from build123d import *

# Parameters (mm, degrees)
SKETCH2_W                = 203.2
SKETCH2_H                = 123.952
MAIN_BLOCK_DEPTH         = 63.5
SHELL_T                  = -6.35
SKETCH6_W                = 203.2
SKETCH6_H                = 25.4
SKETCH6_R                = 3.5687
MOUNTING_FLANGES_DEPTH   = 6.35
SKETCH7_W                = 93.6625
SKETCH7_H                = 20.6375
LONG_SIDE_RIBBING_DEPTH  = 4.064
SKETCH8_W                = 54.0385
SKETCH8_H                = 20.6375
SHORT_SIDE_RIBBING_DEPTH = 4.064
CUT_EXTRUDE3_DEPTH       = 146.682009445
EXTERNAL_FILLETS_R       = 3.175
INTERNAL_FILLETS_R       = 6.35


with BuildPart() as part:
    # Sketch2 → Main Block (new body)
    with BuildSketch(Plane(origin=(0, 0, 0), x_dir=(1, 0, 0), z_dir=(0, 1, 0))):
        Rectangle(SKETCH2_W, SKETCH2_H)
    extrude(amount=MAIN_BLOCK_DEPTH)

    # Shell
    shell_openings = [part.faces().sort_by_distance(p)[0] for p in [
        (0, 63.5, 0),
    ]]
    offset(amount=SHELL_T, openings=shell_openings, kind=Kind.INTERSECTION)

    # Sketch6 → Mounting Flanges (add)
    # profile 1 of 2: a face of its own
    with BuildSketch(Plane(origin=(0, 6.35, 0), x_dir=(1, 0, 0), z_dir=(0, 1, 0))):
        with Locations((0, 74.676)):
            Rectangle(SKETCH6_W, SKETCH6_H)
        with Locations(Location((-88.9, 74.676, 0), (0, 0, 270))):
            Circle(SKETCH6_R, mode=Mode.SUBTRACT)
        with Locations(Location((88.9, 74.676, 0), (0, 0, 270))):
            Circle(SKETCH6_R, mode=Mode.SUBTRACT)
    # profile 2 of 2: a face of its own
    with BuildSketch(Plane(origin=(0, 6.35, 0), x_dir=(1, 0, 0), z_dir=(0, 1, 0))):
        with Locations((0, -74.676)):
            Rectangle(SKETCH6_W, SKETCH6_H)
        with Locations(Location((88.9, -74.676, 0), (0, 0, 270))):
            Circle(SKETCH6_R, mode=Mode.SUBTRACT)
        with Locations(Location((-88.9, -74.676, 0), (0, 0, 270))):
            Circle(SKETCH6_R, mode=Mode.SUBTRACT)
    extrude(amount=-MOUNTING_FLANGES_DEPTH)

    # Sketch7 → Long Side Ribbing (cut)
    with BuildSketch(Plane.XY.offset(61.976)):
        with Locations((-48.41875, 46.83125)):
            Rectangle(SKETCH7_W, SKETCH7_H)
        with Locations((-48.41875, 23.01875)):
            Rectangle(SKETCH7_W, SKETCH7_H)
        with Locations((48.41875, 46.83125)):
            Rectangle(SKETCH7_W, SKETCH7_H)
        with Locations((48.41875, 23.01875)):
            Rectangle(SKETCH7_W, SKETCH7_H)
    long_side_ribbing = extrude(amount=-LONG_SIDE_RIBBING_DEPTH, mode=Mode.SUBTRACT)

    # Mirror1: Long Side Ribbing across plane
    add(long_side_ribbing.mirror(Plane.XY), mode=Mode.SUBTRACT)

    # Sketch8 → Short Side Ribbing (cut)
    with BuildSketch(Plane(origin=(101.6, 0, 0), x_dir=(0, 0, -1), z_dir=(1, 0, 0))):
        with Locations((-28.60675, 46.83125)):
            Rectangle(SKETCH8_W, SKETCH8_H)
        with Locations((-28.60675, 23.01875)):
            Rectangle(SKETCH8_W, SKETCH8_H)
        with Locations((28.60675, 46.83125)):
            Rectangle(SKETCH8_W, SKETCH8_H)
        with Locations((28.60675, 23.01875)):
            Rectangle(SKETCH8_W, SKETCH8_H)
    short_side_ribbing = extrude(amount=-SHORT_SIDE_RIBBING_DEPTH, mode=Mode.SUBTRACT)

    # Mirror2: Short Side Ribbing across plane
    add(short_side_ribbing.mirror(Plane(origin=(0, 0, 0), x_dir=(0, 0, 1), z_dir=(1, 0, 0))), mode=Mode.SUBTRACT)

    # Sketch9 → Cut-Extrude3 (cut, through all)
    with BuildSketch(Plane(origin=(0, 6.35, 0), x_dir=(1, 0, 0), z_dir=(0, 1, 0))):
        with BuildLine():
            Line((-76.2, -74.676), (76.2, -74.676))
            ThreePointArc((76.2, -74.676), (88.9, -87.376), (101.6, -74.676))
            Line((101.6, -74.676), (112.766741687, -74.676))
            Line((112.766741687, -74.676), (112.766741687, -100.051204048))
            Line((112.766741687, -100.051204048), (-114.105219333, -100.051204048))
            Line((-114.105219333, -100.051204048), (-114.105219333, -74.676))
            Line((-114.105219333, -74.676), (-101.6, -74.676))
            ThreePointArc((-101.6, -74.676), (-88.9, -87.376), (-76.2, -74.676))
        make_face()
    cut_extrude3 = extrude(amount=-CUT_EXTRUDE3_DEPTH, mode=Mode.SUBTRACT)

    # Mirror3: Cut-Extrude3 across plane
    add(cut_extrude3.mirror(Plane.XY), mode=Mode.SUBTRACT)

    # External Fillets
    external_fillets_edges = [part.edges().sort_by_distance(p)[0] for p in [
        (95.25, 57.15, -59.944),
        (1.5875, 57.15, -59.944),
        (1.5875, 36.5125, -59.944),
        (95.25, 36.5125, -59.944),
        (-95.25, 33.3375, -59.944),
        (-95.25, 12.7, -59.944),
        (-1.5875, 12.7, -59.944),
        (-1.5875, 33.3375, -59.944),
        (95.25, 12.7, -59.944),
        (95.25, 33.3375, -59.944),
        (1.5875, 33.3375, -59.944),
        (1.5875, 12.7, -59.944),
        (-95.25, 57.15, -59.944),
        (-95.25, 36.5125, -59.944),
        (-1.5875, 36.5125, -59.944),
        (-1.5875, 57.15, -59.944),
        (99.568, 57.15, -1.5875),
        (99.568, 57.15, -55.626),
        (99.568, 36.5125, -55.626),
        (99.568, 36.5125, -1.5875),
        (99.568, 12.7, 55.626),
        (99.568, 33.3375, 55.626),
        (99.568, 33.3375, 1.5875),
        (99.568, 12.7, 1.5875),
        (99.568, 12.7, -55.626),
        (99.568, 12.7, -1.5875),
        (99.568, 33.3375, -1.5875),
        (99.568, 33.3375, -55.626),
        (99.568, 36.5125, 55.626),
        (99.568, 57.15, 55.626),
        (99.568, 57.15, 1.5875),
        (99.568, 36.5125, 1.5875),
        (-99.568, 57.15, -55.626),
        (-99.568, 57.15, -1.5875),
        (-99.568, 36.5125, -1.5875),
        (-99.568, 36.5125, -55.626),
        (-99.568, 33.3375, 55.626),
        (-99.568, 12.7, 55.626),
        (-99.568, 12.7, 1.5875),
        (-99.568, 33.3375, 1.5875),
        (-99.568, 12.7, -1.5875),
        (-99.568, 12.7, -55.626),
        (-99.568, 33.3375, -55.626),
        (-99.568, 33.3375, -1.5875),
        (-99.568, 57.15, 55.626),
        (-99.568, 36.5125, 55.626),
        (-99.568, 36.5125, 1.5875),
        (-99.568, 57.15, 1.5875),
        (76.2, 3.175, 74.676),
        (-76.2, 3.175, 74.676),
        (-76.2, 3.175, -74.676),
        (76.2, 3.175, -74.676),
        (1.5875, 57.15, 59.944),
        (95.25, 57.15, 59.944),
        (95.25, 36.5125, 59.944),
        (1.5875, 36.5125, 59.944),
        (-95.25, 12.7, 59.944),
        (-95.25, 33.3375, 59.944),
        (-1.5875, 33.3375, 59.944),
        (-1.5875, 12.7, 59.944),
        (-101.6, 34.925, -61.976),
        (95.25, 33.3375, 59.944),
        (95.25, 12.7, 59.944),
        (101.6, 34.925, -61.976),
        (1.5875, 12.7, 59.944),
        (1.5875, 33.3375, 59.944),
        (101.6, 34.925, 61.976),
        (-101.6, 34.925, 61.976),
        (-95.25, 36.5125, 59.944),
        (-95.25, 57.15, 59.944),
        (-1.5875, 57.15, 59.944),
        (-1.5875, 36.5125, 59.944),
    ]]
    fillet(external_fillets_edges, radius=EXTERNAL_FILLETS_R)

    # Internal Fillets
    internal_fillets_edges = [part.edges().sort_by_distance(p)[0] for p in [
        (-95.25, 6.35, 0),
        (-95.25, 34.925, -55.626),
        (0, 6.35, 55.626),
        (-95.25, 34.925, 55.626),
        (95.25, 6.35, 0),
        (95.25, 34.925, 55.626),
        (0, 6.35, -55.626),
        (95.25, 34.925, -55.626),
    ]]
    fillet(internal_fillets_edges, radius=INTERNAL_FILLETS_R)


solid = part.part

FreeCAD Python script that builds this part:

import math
import FreeCAD as App
import Part
import Sketcher

V = App.Vector
Q = App.Units.Quantity


def edges_at(feature, points):
    """Names of the edges that pass closest to the given points."""
    edges = feature.Shape.Edges
    near = lambda p: min(range(len(edges)), key=lambda i: edges[i].distToShape(Part.Vertex(*p))[0])
    return sorted({f"Edge{near(p) + 1}" for p in points})


def faces_at(feature, points):
    """Names of the faces that lie closest to the given points."""
    faces = feature.Shape.Faces
    near = lambda p: min(range(len(faces)), key=lambda i: faces[i].distToShape(Part.Vertex(*p))[0])
    return sorted({f"Face{near(p) + 1}" for p in points})

doc = App.newDocument("Part")
body = doc.addObject("PartDesign::Body", "Body")

# Sketch on XZ plane
sketch1 = body.newObject("Sketcher::SketchObject", "Sketch")
sketch1.AttachmentSupport = (doc.getObject("XZ_Plane"), [""])
sketch1.MapMode = "FlatFace"
sketch1.addGeometry([
    Part.LineSegment(V(-102, -62, 0), V(-102, 62, 0)),
    Part.LineSegment(V(-102, 62, 0), V(102, 62, 0)),
    Part.LineSegment(V(102, 62, 0), V(102, -62, 0)),
    Part.LineSegment(V(102, -62, 0), V(-102, -62, 0)),
], False)
sketch1.addConstraint([
    Sketcher.Constraint("Coincident", 0, 2, 1, 1),
    Sketcher.Constraint("Coincident", 1, 2, 2, 1),
    Sketcher.Constraint("Coincident", 2, 2, 3, 1),
    Sketcher.Constraint("Coincident", 3, 2, 0, 1),
    Sketcher.Constraint("Vertical", 0),
    Sketcher.Constraint("Horizontal", 1),
    Sketcher.Constraint("Vertical", 2),
    Sketcher.Constraint("Horizontal", 3),
    Sketcher.Constraint("Symmetric", 0, 2, 2, 2, -1, 1),
    Sketcher.Constraint("DistanceX", 1, 1, 1, 2, Q("8 in")),
    Sketcher.Constraint("DistanceY", 0, 1, 0, 2, Q("4.88 in")),
])
pad1 = body.newObject("PartDesign::Pad", "Pad")
pad1.Profile = sketch1
pad1.Length = Q("2.5 in")
pad1.Reversed = True
doc.recompute()

thickness = body.newObject("PartDesign::Thickness", "Thickness")
thickness.Base = (pad1, faces_at(pad1, [(0, 63.5, 0)]))
thickness.Value = Q("0.25 in")
thickness.Reversed = True
thickness.Join = "Intersection"

# Sketch on XZ plane
sketch2 = body.newObject("Sketcher::SketchObject", "Sketch001")
sketch2.AttachmentSupport = (doc.getObject("XZ_Plane"), [""])
sketch2.MapMode = "FlatFace"
sketch2.AttachmentOffset = App.Placement(V(0, 0, -0.25 * 25.4), App.Rotation())
sketch2.addGeometry([
    Part.LineSegment(V(-101.6, -87.4, 0), V(-101.6, -62, 0)),  # 0
    Part.LineSegment(V(-101.6, -62, 0), V(101.6, -62, 0)),  # 1
    Part.LineSegment(V(101.6, -62, 0), V(101.6, -87.4, 0)),  # 2
    Part.LineSegment(V(101.6, -87.4, 0), V(-101.6, -87.4, 0)),  # 3
    Part.Circle(V(-88.9, -74.7, 0), V(0, 0, 1), 3.6),  # 4
    Part.Circle(V(88.9, -74.7, 0), V(0, 0, 1), 3.6),  # 5
    Part.LineSegment(V(-101.6, 62, 0), V(-101.6, 87.4, 0)),  # 6
    Part.LineSegment(V(-101.6, 87.4, 0), V(101.6, 87.4, 0)),  # 7
    Part.LineSegment(V(101.6, 87.4, 0), V(101.6, 62, 0)),  # 8
    Part.LineSegment(V(101.6, 62, 0), V(-101.6, 62, 0)),  # 9
    Part.Circle(V(-88.9, 74.7, 0), V(0, 0, 1), 3.6),  # 10
    Part.Circle(V(88.9, 74.7, 0), V(0, 0, 1), 3.6),  # 11
], False)
sketch2.addConstraint([
    Sketcher.Constraint("Coincident", 0, 2, 1, 1),
    Sketcher.Constraint("Coincident", 1, 2, 2, 1),
    Sketcher.Constraint("Coincident", 2, 2, 3, 1),
    Sketcher.Constraint("Coincident", 3, 2, 0, 1),
    Sketcher.Constraint("Coincident", 6, 2, 7, 1),
    Sketcher.Constraint("Coincident", 7, 2, 8, 1),
    Sketcher.Constraint("Coincident", 8, 2, 9, 1),
    Sketcher.Constraint("Coincident", 9, 2, 6, 1),
    Sketcher.Constraint("Vertical", 0),
    Sketcher.Constraint("Horizontal", 1),
    Sketcher.Constraint("Vertical", 2),
    Sketcher.Constraint("Horizontal", 3),
    Sketcher.Constraint("Vertical", 6),
    Sketcher.Constraint("Horizontal", 7),
    Sketcher.Constraint("Vertical", 8),
    Sketcher.Constraint("Horizontal", 9),
    Sketcher.Constraint("Equal", 4, 5),
    Sketcher.Constraint("Equal", 5, 10),
    Sketcher.Constraint("Equal", 10, 11),
    Sketcher.Constraint("Symmetric", 5, 3, 10, 3, -1, 1),
    Sketcher.Constraint("Symmetric", 4, 3, 11, 3, -1, 1),
    Sketcher.Constraint("Symmetric", 2, 2, 6, 2, -1, 1),
    Sketcher.Constraint("Symmetric", 0, 2, 8, 2, -1, 1),
    Sketcher.Constraint("Symmetric", 4, 3, 5, 3, -2),
    Sketcher.Constraint("Vertical", 3, 2, 6, 2),
    Sketcher.Constraint("DistanceX", 1, 1, 1, 2, Q("8 in")),
    Sketcher.Constraint("DistanceY", 0, 1, 0, 2, Q("1 in")),
    Sketcher.Constraint("Diameter", 4, Q("0.281 in")),
    Sketcher.Constraint("DistanceX", 4, 3, 5, 3, Q("7 in")),
    Sketcher.Constraint("DistanceY", 4, 3, 0, 2, Q("0.5 in")),
    Sketcher.Constraint("DistanceY", 4, 3, -1, 1, Q("2.94 in")),
])
pad2 = body.newObject("PartDesign::Pad", "Pad001")
pad2.Profile = sketch2
pad2.Length = Q("0.25 in")

# Sketch on XY plane
sketch3 = body.newObject("Sketcher::SketchObject", "Sketch002")
sketch3.AttachmentSupport = (doc.getObject("XY_Plane"), [""])
sketch3.MapMode = "FlatFace"
sketch3.AttachmentOffset = App.Placement(V(0, 0, 2.44 * 25.4), App.Rotation())
sketch3.addGeometry([
    Part.LineSegment(V(-95, 57, 0), V(-95, 37, 0)),  # 0
    Part.LineSegment(V(-95, 37, 0), V(-2, 37, 0)),  # 1
    Part.LineSegment(V(-2, 37, 0), V(-2, 57, 0)),  # 2
    Part.LineSegment(V(-2, 57, 0), V(-95, 57, 0)),  # 3
    Part.LineSegment(V(-95, 33, 0), V(-95, 13, 0)),  # 4
    Part.LineSegment(V(-95, 13, 0), V(-2, 13, 0)),  # 5
    Part.LineSegment(V(-2, 13, 0), V(-2, 33, 0)),  # 6
    Part.LineSegment(V(-2, 33, 0), V(-95, 33, 0)),  # 7
    Part.LineSegment(V(2, 57, 0), V(2, 37, 0)),  # 8
    Part.LineSegment(V(2, 37, 0), V(95, 37, 0)),  # 9
    Part.LineSegment(V(95, 37, 0), V(95, 57, 0)),  # 10
    Part.LineSegment(V(95, 57, 0), V(2, 57, 0)),  # 11
    Part.LineSegment(V(2, 33, 0), V(2, 13, 0)),  # 12
    Part.LineSegment(V(2, 13, 0), V(95, 13, 0)),  # 13
    Part.LineSegment(V(95, 13, 0), V(95, 33, 0)),  # 14
    Part.LineSegment(V(95, 33, 0), V(2, 33, 0)),  # 15
], False)
sketch3.addConstraint([
    Sketcher.Constraint("Coincident", 0, 2, 1, 1),
    Sketcher.Constraint("Coincident", 1, 2, 2, 1),
    Sketcher.Constraint("Coincident", 2, 2, 3, 1),
    Sketcher.Constraint("Coincident", 3, 2, 0, 1),
    Sketcher.Constraint("Coincident", 4, 2, 5, 1),
    Sketcher.Constraint("Coincident", 5, 2, 6, 1),
    Sketcher.Constraint("Coincident", 6, 2, 7, 1),
    Sketcher.Constraint("Coincident", 7, 2, 4, 1),
    Sketcher.Constraint("Coincident", 8, 2, 9, 1),
    Sketcher.Constraint("Coincident", 9, 2, 10, 1),
    Sketcher.Constraint("Coincident", 10, 2, 11, 1),
    Sketcher.Constraint("Coincident", 11, 2, 8, 1),
    Sketcher.Constraint("Coincident", 12, 2, 13, 1),
    Sketcher.Constraint("Coincident", 13, 2, 14, 1),
    Sketcher.Constraint("Coincident", 14, 2, 15, 1),
    Sketcher.Constraint("Coincident", 15, 2, 12, 1),
    Sketcher.Constraint("Vertical", 0),
    Sketcher.Constraint("Horizontal", 1),
    Sketcher.Constraint("Vertical", 2),
    Sketcher.Constraint("Horizontal", 3),
    Sketcher.Constraint("Vertical", 4),
    Sketcher.Constraint("Horizontal", 5),
    Sketcher.Constraint("Vertical", 6),
    Sketcher.Constraint("Horizontal", 7),
    Sketcher.Constraint("Vertical", 8),
    Sketcher.Constraint("Horizontal", 9),
    Sketcher.Constraint("Vertical", 10),
    Sketcher.Constraint("Horizontal", 11),
    Sketcher.Constraint("Vertical", 12),
    Sketcher.Constraint("Horizontal", 13),
    Sketcher.Constraint("Vertical", 14),
    Sketcher.Constraint("Horizontal", 15),
    Sketcher.Constraint("Symmetric", 1, 2, 8, 2, -2),
    Sketcher.Constraint("Symmetric", 3, 2, 10, 2, -2),
    Sketcher.Constraint("Symmetric", 5, 2, 12, 2, -2),
    Sketcher.Constraint("Symmetric", 7, 2, 14, 2, -2),
    Sketcher.Constraint("Vertical", 3, 2, 4, 2),
    Sketcher.Constraint("Vertical", 2, 2, 5, 2),
    Sketcher.Constraint("Equal", 2, 4),
    Sketcher.Constraint("DistanceY", -1, 1, 4, 2, Q("0.5 in")),
    Sketcher.Constraint("DistanceX", 1, 1, 1, 2, Q("3.6875 in")),
    Sketcher.Constraint("DistanceY", 0, 2, 0, 1, Q("0.8125 in")),
    Sketcher.Constraint("DistanceX", 0, 2, -1, 1, Q("3.75 in")),
    Sketcher.Constraint("DistanceY", -1, 1, 2, 2, Q("2.25 in")),
])
pocket1 = body.newObject("PartDesign::Pocket", "Pocket")
pocket1.Profile = sketch3
pocket1.Length = Q("0.16 in")
doc.recompute()

mirrored = body.newObject("PartDesign::Mirrored", "Mirrored")
mirrored.Originals = [pocket1]
mirrored.MirrorPlane = (doc.getObject("XY_Plane"), [""])
body.Tip = mirrored

# Sketch on YZ plane
sketch4 = body.newObject("Sketcher::SketchObject", "Sketch003")
sketch4.AttachmentSupport = (doc.getObject("YZ_Plane"), [""])
sketch4.MapMode = "FlatFace"
sketch4.AttachmentOffset = App.Placement(V(0, 0, 4 * 25.4), App.Rotation())
sketch4.addGeometry([
    Part.LineSegment(V(57, 56, 0), V(37, 56, 0)),  # 0
    Part.LineSegment(V(37, 56, 0), V(37, 2, 0)),  # 1
    Part.LineSegment(V(37, 2, 0), V(57, 2, 0)),  # 2
    Part.LineSegment(V(57, 2, 0), V(57, 56, 0)),  # 3
    Part.LineSegment(V(33, 56, 0), V(13, 56, 0)),  # 4
    Part.LineSegment(V(13, 56, 0), V(13, 2, 0)),  # 5
    Part.LineSegment(V(13, 2, 0), V(33, 2, 0)),  # 6
    Part.LineSegment(V(33, 2, 0), V(33, 56, 0)),  # 7
    Part.LineSegment(V(57, -2, 0), V(37, -2, 0)),  # 8
    Part.LineSegment(V(37, -2, 0), V(37, -56, 0)),  # 9
    Part.LineSegment(V(37, -56, 0), V(57, -56, 0)),  # 10
    Part.LineSegment(V(57, -56, 0), V(57, -2, 0)),  # 11
    Part.LineSegment(V(33, -2, 0), V(13, -2, 0)),  # 12
    Part.LineSegment(V(13, -2, 0), V(13, -56, 0)),  # 13
    Part.LineSegment(V(13, -56, 0), V(33, -56, 0)),  # 14
    Part.LineSegment(V(33, -56, 0), V(33, -2, 0)),  # 15
], False)
sketch4.addConstraint([
    Sketcher.Constraint("Coincident", 0, 2, 1, 1),
    Sketcher.Constraint("Coincident", 1, 2, 2, 1),
    Sketcher.Constraint("Coincident", 2, 2, 3, 1),
    Sketcher.Constraint("Coincident", 3, 2, 0, 1),
    Sketcher.Constraint("Coincident", 4, 2, 5, 1),
    Sketcher.Constraint("Coincident", 5, 2, 6, 1),
    Sketcher.Constraint("Coincident", 6, 2, 7, 1),
    Sketcher.Constraint("Coincident", 7, 2, 4, 1),
    Sketcher.Constraint("Coincident", 8, 2, 9, 1),
    Sketcher.Constraint("Coincident", 9, 2, 10, 1),
    Sketcher.Constraint("Coincident", 10, 2, 11, 1),
    Sketcher.Constraint("Coincident", 11, 2, 8, 1),
    Sketcher.Constraint("Coincident", 12, 2, 13, 1),
    Sketcher.Constraint("Coincident", 13, 2, 14, 1),
    Sketcher.Constraint("Coincident", 14, 2, 15, 1),
    Sketcher.Constraint("Coincident", 15, 2, 12, 1),
    Sketcher.Constraint("Horizontal", 0),
    Sketcher.Constraint("Vertical", 1),
    Sketcher.Constraint("Horizontal", 2),
    Sketcher.Constraint("Vertical", 3),
    Sketcher.Constraint("Horizontal", 4),
    Sketcher.Constraint("Vertical", 5),
    Sketcher.Constraint("Horizontal", 6),
    Sketcher.Constraint("Vertical", 7),
    Sketcher.Constraint("Horizontal", 8),
    Sketcher.Constraint("Vertical", 9),
    Sketcher.Constraint("Horizontal", 10),
    Sketcher.Constraint("Vertical", 11),
    Sketcher.Constraint("Horizontal", 12),
    Sketcher.Constraint("Vertical", 13),
    Sketcher.Constraint("Horizontal", 14),
    Sketcher.Constraint("Vertical", 15),
    Sketcher.Constraint("Symmetric", 1, 2, 8, 2, -1),
    Sketcher.Constraint("Symmetric", 3, 2, 10, 2, -1),
    Sketcher.Constraint("Symmetric", 5, 2, 12, 2, -1),
    Sketcher.Constraint("Symmetric", 7, 2, 14, 2, -1),
    Sketcher.Constraint("Horizontal", 3, 2, 4, 2),
    Sketcher.Constraint("Horizontal", 2, 2, 5, 2),
    Sketcher.Constraint("Equal", 2, 4),
    Sketcher.Constraint("DistanceX", -1, 1, 4, 2, Q("0.5 in")),
    Sketcher.Constraint("DistanceX", 0, 2, 0, 1, Q("0.8125 in")),
    Sketcher.Constraint("DistanceY", -1, 1, 0, 2, Q("2.19 in")),
    Sketcher.Constraint("DistanceX", -1, 1, 2, 2, Q("2.25 in")),
    Sketcher.Constraint("DistanceY", 1, 2, 1, 1, Q("2.1275 in")),
])
pocket2 = body.newObject("PartDesign::Pocket", "Pocket001")
pocket2.Profile = sketch4
pocket2.Length = Q("0.16 in")
doc.recompute()

mirrored2 = body.newObject("PartDesign::Mirrored", "Mirrored001")
mirrored2.Originals = [pocket2]
mirrored2.MirrorPlane = (doc.getObject("YZ_Plane"), [""])
body.Tip = mirrored2

# Sketch on XZ plane
sketch5 = body.newObject("Sketcher::SketchObject", "Sketch004")
sketch5.AttachmentSupport = (doc.getObject("XZ_Plane"), [""])
sketch5.MapMode = "FlatFace"
sketch5.AttachmentOffset = App.Placement(V(0, 0, -0.25 * 25.4), App.Rotation())
sketch5.addGeometry([
    Part.LineSegment(V(76, 75, 0), V(-76, 75, 0)),  # 0
    Part.ArcOfCircle(Part.Circle(V(-89, 75, 0), V(0, 0, 1), 13), math.radians(0), math.radians(180)),  # 1
    Part.LineSegment(V(-102, 75, 0), V(-114, 75, 0)),  # 2
    Part.LineSegment(V(-114, 75, 0), V(-114, 100, 0)),  # 3
    Part.LineSegment(V(-114, 100, 0), V(113, 100, 0)),  # 4
    Part.LineSegment(V(113, 100, 0), V(113, 75, 0)),  # 5
    Part.LineSegment(V(113, 75, 0), V(102, 75, 0)),  # 6
    Part.ArcOfCircle(Part.Circle(V(89, 75, 0), V(0, 0, 1), 13), math.radians(0), math.radians(180)),  # 7
], False)
sketch5.addConstraint([
    Sketcher.Constraint("Coincident", 0, 2, 1, 1),
    Sketcher.Constraint("Coincident", 1, 2, 2, 1),
    Sketcher.Constraint("Coincident", 2, 2, 3, 1),
    Sketcher.Constraint("Coincident", 3, 2, 4, 1),
    Sketcher.Constraint("Coincident", 4, 2, 5, 1),
    Sketcher.Constraint("Coincident", 5, 2, 6, 1),
    Sketcher.Constraint("Coincident", 6, 2, 7, 1),
    Sketcher.Constraint("Coincident", 7, 2, 0, 1),
    Sketcher.Constraint("Horizontal", 0),
    Sketcher.Constraint("Horizontal", 2),
    Sketcher.Constraint("Vertical", 3),
    Sketcher.Constraint("Horizontal", 4),
    Sketcher.Constraint("Vertical", 5),
    Sketcher.Constraint("Horizontal", 6),
    Sketcher.Constraint("Equal", 1, 7),
    Sketcher.Constraint("Symmetric", 1, 3, 7, 3, -2),
    Sketcher.Constraint("Horizontal", 7, 3, 0, 2),
    Sketcher.Constraint("Horizontal", 0, 2, 1, 2),
    Sketcher.Constraint("Horizontal", 2, 2, 5, 2),
    Sketcher.Constraint("Radius", 1, Q("0.5 in")),
    Sketcher.Constraint("DistanceX", 0, 2, 0, 1, Q("6 in")),
    Sketcher.Constraint("DistanceY", -1, 1, 1, 3, Q("2.94 in")),
    Sketcher.Constraint("DistanceX", 2, 2, 2, 1, Q("12.505219 mm")),
    Sketcher.Constraint("DistanceX", 4, 1, 4, 2, Q("226.871961 mm")),
    Sketcher.Constraint("DistanceY", 3, 1, 3, 2, Q("25.375204 mm")),
])
pocket3 = body.newObject("PartDesign::Pocket", "Pocket002")
pocket3.Profile = sketch5
pocket3.Type = "ThroughAll"
pocket3.Reversed = True
doc.recompute()

mirrored3 = body.newObject("PartDesign::Mirrored", "Mirrored002")
mirrored3.Originals = [pocket3]
mirrored3.MirrorPlane = (doc.getObject("XY_Plane"), [""])
body.Tip = mirrored3
doc.recompute()

fillet = body.newObject("PartDesign::Fillet", "Fillet")
fillet.Base = (mirrored3, edges_at(mirrored3, [
    (95.25, 57.15, -59.944),
    (1.587, 57.15, -59.944),
    (1.587, 36.513, -59.944),
    (95.25, 36.513, -59.944),
    (-95.25, 33.337, -59.944),
    (-95.25, 12.7, -59.944),
    (-1.587, 12.7, -59.944),
    (-1.587, 33.337, -59.944),
    (95.25, 12.7, -59.944),
    (95.25, 33.337, -59.944),
    (1.587, 33.337, -59.944),
    (1.587, 12.7, -59.944),
    (-95.25, 57.15, -59.944),
    (-95.25, 36.513, -59.944),
    (-1.587, 36.513, -59.944),
    (-1.587, 57.15, -59.944),
    (99.568, 57.15, -1.587),
    (99.568, 57.15, -55.626),
    (99.568, 36.513, -55.626),
    (99.568, 36.513, -1.587),
    (99.568, 12.7, 55.626),
    (99.568, 33.337, 55.626),
    (99.568, 33.337, 1.587),
    (99.568, 12.7, 1.587),
    (99.568, 12.7, -55.626),
    (99.568, 12.7, -1.587),
    (99.568, 33.337, -1.587),
    (99.568, 33.337, -55.626),
    (99.568, 36.513, 55.626),
    (99.568, 57.15, 55.626),
    (99.568, 57.15, 1.587),
    (99.568, 36.513, 1.587),
    (-99.568, 57.15, -55.626),
    (-99.568, 57.15, -1.587),
    (-99.568, 36.513, -1.587),
    (-99.568, 36.513, -55.626),
    (-99.568, 33.337, 55.626),
    (-99.568, 12.7, 55.626),
    (-99.568, 12.7, 1.587),
    (-99.568, 33.337, 1.587),
    (-99.568, 12.7, -1.587),
    (-99.568, 12.7, -55.626),
    (-99.568, 33.337, -55.626),
    (-99.568, 33.337, -1.587),
    (-99.568, 57.15, 55.626),
    (-99.568, 36.513, 55.626),
    (-99.568, 36.513, 1.587),
    (-99.568, 57.15, 1.587),
    (76.2, 3.175, 74.676),
    (-76.2, 3.175, 74.676),
    (-76.2, 3.175, -74.676),
    (76.2, 3.175, -74.676),
    (1.587, 57.15, 59.944),
    (95.25, 57.15, 59.944),
    (95.25, 36.513, 59.944),
    (1.587, 36.513, 59.944),
    (-95.25, 12.7, 59.944),
    (-95.25, 33.337, 59.944),
    (-1.587, 33.337, 59.944),
    (-1.587, 12.7, 59.944),
    (-101.6, 34.925, -61.976),
    (95.25, 33.337, 59.944),
    (95.25, 12.7, 59.944),
    (101.6, 34.925, -61.976),
    (1.587, 12.7, 59.944),
    (1.587, 33.337, 59.944),
    (101.6, 34.925, 61.976),
    (-101.6, 34.925, 61.976),
    (-95.25, 36.513, 59.944),
    (-95.25, 57.15, 59.944),
    (-1.587, 57.15, 59.944),
    (-1.587, 36.513, 59.944),
]))
fillet.Radius = Q("0.125 in")
doc.recompute()

fillet2 = body.newObject("PartDesign::Fillet", "Fillet001")
fillet2.Base = (fillet, edges_at(fillet, [
    (-95.25, 6.35, 0),
    (-95.25, 34.925, -55.626),
    (0, 6.35, 55.626),
    (-95.25, 34.925, 55.626),
    (95.25, 6.35, 0),
    (95.25, 34.925, 55.626),
    (0, 6.35, -55.626),
    (95.25, 34.925, -55.626),
]))
fillet2.Radius = Q("0.25 in")

doc.recompute()
